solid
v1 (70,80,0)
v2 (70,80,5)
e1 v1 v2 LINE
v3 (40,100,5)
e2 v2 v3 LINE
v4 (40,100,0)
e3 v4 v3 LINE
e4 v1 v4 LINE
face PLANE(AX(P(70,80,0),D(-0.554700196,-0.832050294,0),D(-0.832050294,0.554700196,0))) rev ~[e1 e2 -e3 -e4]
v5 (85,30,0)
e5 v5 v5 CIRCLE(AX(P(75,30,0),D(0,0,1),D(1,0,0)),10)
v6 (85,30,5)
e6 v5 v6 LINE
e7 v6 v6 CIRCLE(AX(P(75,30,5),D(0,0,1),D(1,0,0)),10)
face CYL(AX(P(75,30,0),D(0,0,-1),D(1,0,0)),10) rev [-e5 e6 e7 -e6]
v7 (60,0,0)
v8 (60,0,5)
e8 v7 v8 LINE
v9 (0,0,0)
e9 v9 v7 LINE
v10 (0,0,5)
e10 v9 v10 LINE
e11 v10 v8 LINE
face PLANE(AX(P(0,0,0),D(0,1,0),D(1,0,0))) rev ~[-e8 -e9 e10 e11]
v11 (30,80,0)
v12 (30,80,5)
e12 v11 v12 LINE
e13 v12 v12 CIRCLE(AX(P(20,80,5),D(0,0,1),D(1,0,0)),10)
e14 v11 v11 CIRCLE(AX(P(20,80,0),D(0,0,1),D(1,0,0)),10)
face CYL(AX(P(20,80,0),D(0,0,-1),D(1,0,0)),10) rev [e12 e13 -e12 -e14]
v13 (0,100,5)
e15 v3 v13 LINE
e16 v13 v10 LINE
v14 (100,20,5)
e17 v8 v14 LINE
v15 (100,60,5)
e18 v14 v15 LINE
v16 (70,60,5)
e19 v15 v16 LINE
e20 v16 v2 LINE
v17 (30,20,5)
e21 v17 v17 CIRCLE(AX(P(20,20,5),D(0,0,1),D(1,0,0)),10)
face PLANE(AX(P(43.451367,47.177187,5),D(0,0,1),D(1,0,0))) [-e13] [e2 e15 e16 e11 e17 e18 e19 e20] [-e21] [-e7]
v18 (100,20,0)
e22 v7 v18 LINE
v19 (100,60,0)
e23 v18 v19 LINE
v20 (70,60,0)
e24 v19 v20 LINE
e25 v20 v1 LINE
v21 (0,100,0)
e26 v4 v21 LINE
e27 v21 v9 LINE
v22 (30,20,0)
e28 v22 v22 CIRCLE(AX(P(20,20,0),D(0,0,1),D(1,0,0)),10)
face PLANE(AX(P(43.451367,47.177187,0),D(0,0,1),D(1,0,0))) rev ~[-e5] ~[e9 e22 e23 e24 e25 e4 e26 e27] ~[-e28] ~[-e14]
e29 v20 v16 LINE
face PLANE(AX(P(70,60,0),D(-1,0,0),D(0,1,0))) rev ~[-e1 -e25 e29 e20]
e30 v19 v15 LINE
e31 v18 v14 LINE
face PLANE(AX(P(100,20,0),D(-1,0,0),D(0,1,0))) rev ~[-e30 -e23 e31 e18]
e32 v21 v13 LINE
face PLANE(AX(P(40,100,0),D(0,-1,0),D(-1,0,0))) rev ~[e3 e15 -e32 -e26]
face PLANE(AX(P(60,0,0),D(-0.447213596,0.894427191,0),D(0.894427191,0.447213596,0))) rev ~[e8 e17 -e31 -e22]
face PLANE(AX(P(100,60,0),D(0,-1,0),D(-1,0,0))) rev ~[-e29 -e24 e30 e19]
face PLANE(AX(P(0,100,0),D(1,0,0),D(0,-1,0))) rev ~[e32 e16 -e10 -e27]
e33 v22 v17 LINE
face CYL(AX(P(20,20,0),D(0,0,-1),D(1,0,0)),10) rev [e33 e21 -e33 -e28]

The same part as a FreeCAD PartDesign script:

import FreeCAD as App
import Part
import Sketcher
Q = App.Units.Quantity


def add_polygon(sketch, points):
    """Adds a closed chain of lines whose ends are joined by coincident constraints."""
    first, n = sketch.GeometryCount, len(points)
    for a, b in zip(points, points[1:] + points[:1]):
        sketch.addGeometry(Part.LineSegment(App.Vector(*a, 0), App.Vector(*b, 0)), False)
    for i in range(n):
        sketch.addConstraint(Sketcher.Constraint("Coincident", first + i, 2, first + (i + 1) % n, 1))

doc = App.newDocument("Part")
body = doc.addObject("PartDesign::Body", "Body")

sketch1 = body.newObject("Sketcher::SketchObject", "Sketch")
sketch1.AttachmentSupport = (doc.getObject("XY_Plane"), [""])
sketch1.MapMode = "FlatFace"
add_polygon(sketch1, [(0, 100), (0, 0), (60, 0), (100, 20), (100, 60), (70, 60), (70, 80), (40, 100)])
sketch1.addGeometry(Part.Circle(App.Vector(20, 20, 0), App.Vector(0, 0, 1), 10), False)
sketch1.addGeometry(Part.Circle(App.Vector(75, 30, 0), App.Vector(0, 0, 1), 10), False)
sketch1.addGeometry(Part.Circle(App.Vector(20, 80, 0), App.Vector(0, 0, 1), 10), False)
sketch1.addConstraint([
    Sketcher.Constraint("Vertical", 0),
    Sketcher.Constraint("Horizontal", 1),
    Sketcher.Constraint("Vertical", 3),
    Sketcher.Constraint("Horizontal", 4),
    Sketcher.Constraint("Vertical", 5),
    Sketcher.Constraint("Horizontal", 7),
    Sketcher.Constraint("Coincident", 0, 2, -1, 1),
    Sketcher.Constraint("Equal", 8, 9),
    Sketcher.Constraint("Equal", 9, 10),
    Sketcher.Constraint("Horizontal", 8, 3, 2, 2),
    Sketcher.Constraint("Horizontal", 10, 3, 5, 2),
    Sketcher.Constraint("Vertical", 8, 3, 10, 3),
    Sketcher.Constraint("Equal", 7, 3),
    Sketcher.Constraint("Diameter", 8, Q("20 mm")),
    Sketcher.Constraint("DistanceX", 1, 1, 1, 2, Q("60 mm")),
    Sketcher.Constraint("DistanceX", 4, 2, 4, 1, Q("30 mm")),
    Sketcher.Constraint("DistanceX", 7, 2, 7, 1, Q("40 mm")),
    Sketcher.Constraint("DistanceY", 0, 2, 0, 1, Q("100 mm")),
    Sketcher.Constraint("DistanceY", 5, 1, 5, 2, Q("20 mm")),
    Sketcher.Constraint("DistanceX", -1, 1, 8, 3, Q("20 mm")),
    Sketcher.Constraint("DistanceY", -1, 1, 8, 3, Q("20 mm")),
    Sketcher.Constraint("DistanceX", -1, 1, 9, 3, Q("75 mm")),
    Sketcher.Constraint("DistanceY", -1, 1, 9, 3, Q("30 mm")),
    Sketcher.Constraint("DistanceX", -1, 1, 2, 2, Q("100 mm")),
])
pad1 = body.newObject("PartDesign::Pad", "Pad")
pad1.Profile = sketch1
pad1.Length = 5

doc.recompute()
